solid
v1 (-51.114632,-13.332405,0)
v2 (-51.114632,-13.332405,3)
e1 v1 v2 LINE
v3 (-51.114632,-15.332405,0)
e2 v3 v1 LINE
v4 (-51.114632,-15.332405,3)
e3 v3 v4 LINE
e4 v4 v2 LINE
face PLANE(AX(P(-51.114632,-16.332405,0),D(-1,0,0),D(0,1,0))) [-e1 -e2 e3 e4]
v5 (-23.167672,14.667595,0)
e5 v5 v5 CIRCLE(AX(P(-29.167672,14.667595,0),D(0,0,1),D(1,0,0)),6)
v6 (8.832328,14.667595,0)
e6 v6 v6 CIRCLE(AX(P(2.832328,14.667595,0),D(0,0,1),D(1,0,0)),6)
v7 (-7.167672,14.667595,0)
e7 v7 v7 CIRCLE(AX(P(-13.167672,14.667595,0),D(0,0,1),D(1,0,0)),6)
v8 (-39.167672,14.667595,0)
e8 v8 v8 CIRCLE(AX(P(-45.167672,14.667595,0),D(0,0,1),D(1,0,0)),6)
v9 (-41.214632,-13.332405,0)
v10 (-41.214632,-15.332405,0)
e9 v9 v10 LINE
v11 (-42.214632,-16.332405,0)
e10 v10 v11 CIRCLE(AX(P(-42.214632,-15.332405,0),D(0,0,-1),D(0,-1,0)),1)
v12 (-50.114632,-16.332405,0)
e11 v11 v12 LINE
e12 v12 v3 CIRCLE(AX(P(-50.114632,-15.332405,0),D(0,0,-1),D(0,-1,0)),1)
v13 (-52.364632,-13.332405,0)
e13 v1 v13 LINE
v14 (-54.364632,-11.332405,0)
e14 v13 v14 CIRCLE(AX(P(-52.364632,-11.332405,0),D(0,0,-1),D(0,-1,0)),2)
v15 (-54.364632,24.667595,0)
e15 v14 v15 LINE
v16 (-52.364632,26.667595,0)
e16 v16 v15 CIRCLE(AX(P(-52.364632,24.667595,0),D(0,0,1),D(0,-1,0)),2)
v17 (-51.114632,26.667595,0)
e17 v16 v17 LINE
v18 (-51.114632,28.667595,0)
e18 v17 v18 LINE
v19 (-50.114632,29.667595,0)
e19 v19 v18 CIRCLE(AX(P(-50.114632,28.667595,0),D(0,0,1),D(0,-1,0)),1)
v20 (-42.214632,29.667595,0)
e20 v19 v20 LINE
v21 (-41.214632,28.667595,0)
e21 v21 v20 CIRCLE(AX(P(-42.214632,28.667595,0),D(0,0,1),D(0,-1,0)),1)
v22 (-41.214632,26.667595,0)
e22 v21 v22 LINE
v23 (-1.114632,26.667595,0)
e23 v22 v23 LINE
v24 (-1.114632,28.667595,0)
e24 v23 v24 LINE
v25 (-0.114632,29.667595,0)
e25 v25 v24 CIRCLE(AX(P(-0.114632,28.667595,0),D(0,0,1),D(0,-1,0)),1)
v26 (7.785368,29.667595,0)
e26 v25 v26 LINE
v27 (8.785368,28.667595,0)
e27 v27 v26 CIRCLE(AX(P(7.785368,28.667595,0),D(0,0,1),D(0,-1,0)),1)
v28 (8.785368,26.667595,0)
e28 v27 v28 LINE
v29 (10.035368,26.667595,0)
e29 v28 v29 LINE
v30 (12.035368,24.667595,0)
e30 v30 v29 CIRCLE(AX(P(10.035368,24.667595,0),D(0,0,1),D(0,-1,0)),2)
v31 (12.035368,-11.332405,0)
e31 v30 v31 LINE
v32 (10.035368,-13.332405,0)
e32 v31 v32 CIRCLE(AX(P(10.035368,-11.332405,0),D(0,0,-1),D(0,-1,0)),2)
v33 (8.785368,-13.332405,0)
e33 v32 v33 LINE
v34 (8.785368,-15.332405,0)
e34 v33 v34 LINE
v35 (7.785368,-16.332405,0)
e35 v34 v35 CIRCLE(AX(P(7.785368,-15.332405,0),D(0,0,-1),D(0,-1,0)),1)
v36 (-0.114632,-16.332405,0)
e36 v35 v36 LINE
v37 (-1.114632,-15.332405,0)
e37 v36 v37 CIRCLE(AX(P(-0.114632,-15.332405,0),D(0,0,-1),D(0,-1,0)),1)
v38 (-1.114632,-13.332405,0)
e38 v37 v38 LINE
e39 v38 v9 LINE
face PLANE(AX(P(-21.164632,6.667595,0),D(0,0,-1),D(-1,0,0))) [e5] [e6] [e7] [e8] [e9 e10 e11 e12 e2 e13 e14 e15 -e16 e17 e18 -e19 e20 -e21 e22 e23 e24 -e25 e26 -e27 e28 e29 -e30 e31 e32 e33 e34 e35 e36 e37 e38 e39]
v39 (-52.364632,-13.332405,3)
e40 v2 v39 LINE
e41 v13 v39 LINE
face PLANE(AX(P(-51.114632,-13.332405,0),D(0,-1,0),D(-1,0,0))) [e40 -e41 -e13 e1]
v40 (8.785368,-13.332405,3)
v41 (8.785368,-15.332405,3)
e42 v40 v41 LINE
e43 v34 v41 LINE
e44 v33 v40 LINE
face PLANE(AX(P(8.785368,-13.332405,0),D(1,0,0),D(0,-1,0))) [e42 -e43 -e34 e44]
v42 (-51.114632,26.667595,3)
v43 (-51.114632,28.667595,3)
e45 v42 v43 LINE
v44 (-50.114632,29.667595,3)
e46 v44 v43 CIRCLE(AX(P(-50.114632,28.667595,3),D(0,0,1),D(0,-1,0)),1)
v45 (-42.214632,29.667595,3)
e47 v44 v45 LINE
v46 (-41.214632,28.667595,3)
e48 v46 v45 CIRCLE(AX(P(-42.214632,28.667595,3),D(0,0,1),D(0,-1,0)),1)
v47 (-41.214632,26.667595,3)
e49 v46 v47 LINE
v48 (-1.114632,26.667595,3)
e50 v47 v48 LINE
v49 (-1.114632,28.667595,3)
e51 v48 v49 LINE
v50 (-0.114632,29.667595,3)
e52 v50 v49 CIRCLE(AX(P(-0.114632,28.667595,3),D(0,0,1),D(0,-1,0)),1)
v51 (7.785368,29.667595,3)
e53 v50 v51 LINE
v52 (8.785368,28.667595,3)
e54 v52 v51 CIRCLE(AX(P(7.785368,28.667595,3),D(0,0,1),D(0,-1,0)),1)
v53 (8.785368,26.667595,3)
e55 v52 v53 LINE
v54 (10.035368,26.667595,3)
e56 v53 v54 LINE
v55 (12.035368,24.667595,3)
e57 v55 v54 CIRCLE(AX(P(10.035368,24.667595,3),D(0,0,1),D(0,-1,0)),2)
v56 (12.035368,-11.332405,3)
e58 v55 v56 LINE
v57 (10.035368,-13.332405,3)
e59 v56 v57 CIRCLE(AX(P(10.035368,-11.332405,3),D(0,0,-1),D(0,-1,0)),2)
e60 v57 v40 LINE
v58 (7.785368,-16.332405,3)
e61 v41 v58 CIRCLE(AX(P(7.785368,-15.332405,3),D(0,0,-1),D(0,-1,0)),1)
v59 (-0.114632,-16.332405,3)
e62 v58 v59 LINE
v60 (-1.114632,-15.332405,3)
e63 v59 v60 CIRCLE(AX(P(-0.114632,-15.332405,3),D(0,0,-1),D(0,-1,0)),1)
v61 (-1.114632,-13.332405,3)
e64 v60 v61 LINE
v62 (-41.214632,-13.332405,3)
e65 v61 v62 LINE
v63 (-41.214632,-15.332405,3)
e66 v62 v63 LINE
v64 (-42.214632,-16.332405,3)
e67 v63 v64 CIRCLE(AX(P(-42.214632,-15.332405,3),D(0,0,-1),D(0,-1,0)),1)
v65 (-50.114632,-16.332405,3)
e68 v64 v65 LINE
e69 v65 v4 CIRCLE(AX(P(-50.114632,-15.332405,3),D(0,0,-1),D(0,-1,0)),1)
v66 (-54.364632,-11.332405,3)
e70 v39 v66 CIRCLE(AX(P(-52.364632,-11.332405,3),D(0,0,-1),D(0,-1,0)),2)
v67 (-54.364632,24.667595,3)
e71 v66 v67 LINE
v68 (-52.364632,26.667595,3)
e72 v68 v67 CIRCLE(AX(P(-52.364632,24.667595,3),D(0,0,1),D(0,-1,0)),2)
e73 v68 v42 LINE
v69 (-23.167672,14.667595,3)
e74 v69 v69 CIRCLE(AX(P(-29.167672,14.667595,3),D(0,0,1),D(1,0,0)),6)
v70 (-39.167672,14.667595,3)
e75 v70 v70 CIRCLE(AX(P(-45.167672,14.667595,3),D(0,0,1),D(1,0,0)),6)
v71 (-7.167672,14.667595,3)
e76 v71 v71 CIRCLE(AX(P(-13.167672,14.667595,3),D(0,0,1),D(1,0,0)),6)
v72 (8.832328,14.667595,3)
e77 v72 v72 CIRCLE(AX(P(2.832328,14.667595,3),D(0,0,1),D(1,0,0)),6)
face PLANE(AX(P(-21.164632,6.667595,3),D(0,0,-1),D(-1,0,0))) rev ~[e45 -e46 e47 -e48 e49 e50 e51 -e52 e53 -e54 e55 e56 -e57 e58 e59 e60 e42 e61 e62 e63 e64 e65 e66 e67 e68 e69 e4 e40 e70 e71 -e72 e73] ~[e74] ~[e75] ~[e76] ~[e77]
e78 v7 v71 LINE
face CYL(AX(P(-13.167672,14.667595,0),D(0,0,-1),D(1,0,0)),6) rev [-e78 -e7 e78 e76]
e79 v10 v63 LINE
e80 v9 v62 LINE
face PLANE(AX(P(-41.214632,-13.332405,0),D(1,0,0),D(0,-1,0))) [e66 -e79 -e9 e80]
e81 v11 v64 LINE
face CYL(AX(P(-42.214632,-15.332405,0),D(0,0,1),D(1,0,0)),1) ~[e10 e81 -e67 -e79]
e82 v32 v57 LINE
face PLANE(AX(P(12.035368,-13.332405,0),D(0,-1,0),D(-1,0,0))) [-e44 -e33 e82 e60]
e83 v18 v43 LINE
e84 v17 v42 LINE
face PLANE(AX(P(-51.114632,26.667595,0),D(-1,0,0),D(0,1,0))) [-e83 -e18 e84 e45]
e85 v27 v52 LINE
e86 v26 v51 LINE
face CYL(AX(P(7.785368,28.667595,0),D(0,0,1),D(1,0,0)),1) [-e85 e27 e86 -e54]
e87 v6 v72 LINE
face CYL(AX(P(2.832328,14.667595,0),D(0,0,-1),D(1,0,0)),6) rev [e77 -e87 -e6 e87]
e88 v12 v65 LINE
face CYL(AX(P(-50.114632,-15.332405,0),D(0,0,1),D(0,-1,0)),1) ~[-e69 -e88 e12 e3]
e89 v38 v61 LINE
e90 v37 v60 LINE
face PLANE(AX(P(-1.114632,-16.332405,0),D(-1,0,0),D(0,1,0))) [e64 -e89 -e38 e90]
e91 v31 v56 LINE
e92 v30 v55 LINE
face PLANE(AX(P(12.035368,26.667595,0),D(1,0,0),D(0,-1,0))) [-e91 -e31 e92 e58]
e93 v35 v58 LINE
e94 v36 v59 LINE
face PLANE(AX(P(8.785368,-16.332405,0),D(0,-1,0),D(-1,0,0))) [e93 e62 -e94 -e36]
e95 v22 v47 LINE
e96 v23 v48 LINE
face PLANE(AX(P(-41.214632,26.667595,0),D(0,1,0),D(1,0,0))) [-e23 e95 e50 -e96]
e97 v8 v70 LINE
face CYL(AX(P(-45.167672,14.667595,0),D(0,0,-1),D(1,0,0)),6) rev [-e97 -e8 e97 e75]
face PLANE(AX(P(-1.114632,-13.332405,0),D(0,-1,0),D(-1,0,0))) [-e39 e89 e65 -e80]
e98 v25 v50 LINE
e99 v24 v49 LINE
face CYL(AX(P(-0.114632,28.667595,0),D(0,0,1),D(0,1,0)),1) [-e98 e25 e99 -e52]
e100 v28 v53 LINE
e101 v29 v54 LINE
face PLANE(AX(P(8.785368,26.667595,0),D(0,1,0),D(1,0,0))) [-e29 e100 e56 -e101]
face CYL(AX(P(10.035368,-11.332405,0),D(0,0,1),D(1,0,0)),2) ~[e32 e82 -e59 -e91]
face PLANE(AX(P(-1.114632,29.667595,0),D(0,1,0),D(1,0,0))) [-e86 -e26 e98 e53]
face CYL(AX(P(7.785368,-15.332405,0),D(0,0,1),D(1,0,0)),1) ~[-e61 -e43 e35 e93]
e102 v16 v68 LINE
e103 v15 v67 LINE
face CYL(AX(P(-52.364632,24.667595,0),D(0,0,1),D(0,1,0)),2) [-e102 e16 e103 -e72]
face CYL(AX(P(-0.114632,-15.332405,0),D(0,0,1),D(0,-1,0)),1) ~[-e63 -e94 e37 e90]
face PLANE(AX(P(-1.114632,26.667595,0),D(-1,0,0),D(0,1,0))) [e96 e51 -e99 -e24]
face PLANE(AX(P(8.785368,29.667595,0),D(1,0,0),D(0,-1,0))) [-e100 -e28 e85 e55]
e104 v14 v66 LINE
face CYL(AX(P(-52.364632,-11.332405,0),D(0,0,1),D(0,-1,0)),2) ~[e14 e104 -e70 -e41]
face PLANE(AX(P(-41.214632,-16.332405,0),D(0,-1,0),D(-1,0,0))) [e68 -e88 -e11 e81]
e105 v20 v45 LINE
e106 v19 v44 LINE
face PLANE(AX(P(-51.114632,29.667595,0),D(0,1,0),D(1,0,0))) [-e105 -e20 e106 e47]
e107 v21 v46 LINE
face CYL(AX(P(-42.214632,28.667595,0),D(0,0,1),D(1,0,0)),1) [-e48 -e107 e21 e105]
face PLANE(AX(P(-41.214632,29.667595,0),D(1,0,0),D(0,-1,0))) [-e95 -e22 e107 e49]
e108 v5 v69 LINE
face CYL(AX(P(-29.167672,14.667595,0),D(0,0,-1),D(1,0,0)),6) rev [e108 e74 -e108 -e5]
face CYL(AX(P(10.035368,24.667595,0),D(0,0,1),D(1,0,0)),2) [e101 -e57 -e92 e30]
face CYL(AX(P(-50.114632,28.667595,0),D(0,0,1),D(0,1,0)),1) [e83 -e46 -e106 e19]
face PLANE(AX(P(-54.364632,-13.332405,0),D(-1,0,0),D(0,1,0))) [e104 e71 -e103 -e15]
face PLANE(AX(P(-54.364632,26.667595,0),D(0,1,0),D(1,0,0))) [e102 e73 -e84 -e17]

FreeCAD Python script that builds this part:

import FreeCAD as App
import Part
import Sketcher


def edges_at(feature, points):
    """Names of the edges that pass closest to the given points."""
    edges = feature.Shape.Edges
    near = lambda p: min(range(len(edges)), key=lambda i: edges[i].distToShape(Part.Vertex(*p))[0])
    return sorted({f"Edge{near(p) + 1}" for p in points})


def add_polygon(sketch, points):
    """Adds a closed chain of lines whose ends are joined by coincident constraints."""
    first, n = sketch.GeometryCount, len(points)
    for a, b in zip(points, points[1:] + points[:1]):
        sketch.addGeometry(Part.LineSegment(App.Vector(*a, 0), App.Vector(*b, 0)), False)
    for i in range(n):
        sketch.addConstraint(Sketcher.Constraint("Coincident", first + i, 2, first + (i + 1) % n, 1))

doc = App.newDocument("Part")
body = doc.addObject("PartDesign::Body", "Body")

sketch1 = body.newObject("Sketcher::SketchObject", "Sketch")
sketch1.AttachmentSupport = (doc.getObject("XY_Plane"), [""])
sketch1.MapMode = "FlatFace"
add_polygon(sketch1, [(12, -13.3), (12, 26.7), (8.8, 26.7), (8.8, 29.7), (-1.1, 29.7), (-1.1, 26.7), (-41.2, 26.7), (-41.2, 29.7), (-51.1, 29.7), (-51.1, 26.7), (-54.4, 26.7), (-54.4, -13.3), (-51.1, -13.3), (-51.1, -16.3), (-41.2, -16.3), (-41.2, -13.3), (-1.1, -13.3), (-1.1, -16.3), (8.8, -16.3), (8.8, -13.3)])
sketch1.addGeometry(Part.Circle(App.Vector(2.8, 14.7, 0), App.Vector(0, 0, 1), 6), False)
sketch1.addGeometry(Part.Circle(App.Vector(-13.2, 14.7, 0), App.Vector(0, 0, 1), 6), False)
sketch1.addGeometry(Part.Circle(App.Vector(-29.2, 14.7, 0), App.Vector(0, 0, 1), 6), False)
sketch1.addGeometry(Part.Circle(App.Vector(-45.2, 14.7, 0), App.Vector(0, 0, 1), 6), False)
sketch1.addConstraint([
    Sketcher.Constraint("Vertical", 0),
    Sketcher.Constraint("Horizontal", 1),
    Sketcher.Constraint("Vertical", 2),
    Sketcher.Constraint("Horizontal", 3),
    Sketcher.Constraint("Vertical", 4),
    Sketcher.Constraint("Horizontal", 5),
    Sketcher.Constraint("Vertical", 6),
    Sketcher.Constraint("Horizontal", 7),
    Sketcher.Constraint("Vertical", 8),
    Sketcher.Constraint("Horizontal", 9),
    Sketcher.Constraint("Vertical", 10),
    Sketcher.Constraint("Horizontal", 11),
    Sketcher.Constraint("Vertical", 12),
    Sketcher.Constraint("Horizontal", 13),
    Sketcher.Constraint("Vertical", 14),
    Sketcher.Constraint("Horizontal", 15),
    Sketcher.Constraint("Vertical", 16),
    Sketcher.Constraint("Horizontal", 17),
    Sketcher.Constraint("Vertical", 18),
    Sketcher.Constraint("Horizontal", 19),
    Sketcher.Constraint("Equal", 20, 21),
    Sketcher.Constraint("Equal", 21, 22),
    Sketcher.Constraint("Equal", 22, 23),
    Sketcher.Constraint("Horizontal", 20, 3, 21, 3),
    Sketcher.Constraint("Horizontal", 21, 3, 22, 3),
    Sketcher.Constraint("Horizontal", 22, 3, 23, 3),
    Sketcher.Constraint("Horizontal", 1, 2, 4, 2),
    Sketcher.Constraint("Horizontal", 3, 2, 6, 2),
    Sketcher.Constraint("Horizontal", 5, 2, 8, 2),
    Sketcher.Constraint("Horizontal", 11, 2, 14, 2),
    Sketcher.Constraint("Horizontal", 13, 2, 16, 2),
    Sketcher.Constraint("Horizontal", 15, 2, 18, 2),
    Sketcher.Constraint("Vertical", 8, 2, 11, 2),
    Sketcher.Constraint("Vertical", 6, 2, 13, 2),
    Sketcher.Constraint("Vertical", 4, 2, 15, 2),
    Sketcher.Constraint("Vertical", 2, 2, 17, 2),
    Sketcher.Constraint("Equal", 3, 7),
    Sketcher.Constraint("Equal", 1, 9),
    Sketcher.Constraint("Equal", 8, 12),
    Sketcher.Constraint("Diameter", 20, 12.0),
    Sketcher.Constraint("DistanceY", 0, 1, 0, 2, 40.0),
    Sketcher.Constraint("DistanceY", 2, 1, 2, 2, 3.0),
    Sketcher.Constraint("DistanceX", 3, 2, 3, 1, 9.9),
    Sketcher.Constraint("DistanceX", 5, 2, 5, 1, 40.1),
    Sketcher.Constraint("DistanceX", 21, 3, 20, 3, 16.0),
    Sketcher.Constraint("DistanceX", 22, 3, 21, 3, 16.0),
    Sketcher.Constraint("DistanceX", 23, 3, 22, 3, 16.0),
    Sketcher.Constraint("DistanceY", 20, 3, 0, 2, 12.0),
    Sketcher.Constraint("DistanceX", 1, 2, 1, 1, 3.25),
    Sketcher.Constraint("DistanceX", -1, 1, 20, 3, 2.832328),
    Sketcher.Constraint("DistanceX", 20, 3, 0, 2, 9.20304),
    Sketcher.Constraint("DistanceY", -1, 1, 20, 3, 14.667595),
])
pad1 = body.newObject("PartDesign::Pad", "Pad")
pad1.Profile = sketch1
pad1.Length = 3
doc.recompute()

fillet = body.newObject("PartDesign::Fillet", "Fillet")
fillet.Base = (pad1, edges_at(pad1, [
    (-54.365, 26.668, 1.5),
    (-54.365, -13.332, 1.5),
    (12.035, -13.332, 1.5),
    (12.035, 26.668, 1.5),
]))
fillet.Radius = 2
doc.recompute()

fillet2 = body.newObject("PartDesign::Fillet", "Fillet001")
fillet2.Base = (fillet, edges_at(fillet, [
    (8.785, 29.668, 1.5),
    (-1.115, 29.668, 1.5),
    (-41.215, 29.668, 1.5),
    (-51.115, 29.668, 1.5),
    (-51.115, -16.332, 1.5),
    (-41.215, -16.332, 1.5),
    (-1.115, -16.332, 1.5),
    (8.785, -16.332, 1.5),
]))
fillet2.Radius = 1

doc.recompute()
